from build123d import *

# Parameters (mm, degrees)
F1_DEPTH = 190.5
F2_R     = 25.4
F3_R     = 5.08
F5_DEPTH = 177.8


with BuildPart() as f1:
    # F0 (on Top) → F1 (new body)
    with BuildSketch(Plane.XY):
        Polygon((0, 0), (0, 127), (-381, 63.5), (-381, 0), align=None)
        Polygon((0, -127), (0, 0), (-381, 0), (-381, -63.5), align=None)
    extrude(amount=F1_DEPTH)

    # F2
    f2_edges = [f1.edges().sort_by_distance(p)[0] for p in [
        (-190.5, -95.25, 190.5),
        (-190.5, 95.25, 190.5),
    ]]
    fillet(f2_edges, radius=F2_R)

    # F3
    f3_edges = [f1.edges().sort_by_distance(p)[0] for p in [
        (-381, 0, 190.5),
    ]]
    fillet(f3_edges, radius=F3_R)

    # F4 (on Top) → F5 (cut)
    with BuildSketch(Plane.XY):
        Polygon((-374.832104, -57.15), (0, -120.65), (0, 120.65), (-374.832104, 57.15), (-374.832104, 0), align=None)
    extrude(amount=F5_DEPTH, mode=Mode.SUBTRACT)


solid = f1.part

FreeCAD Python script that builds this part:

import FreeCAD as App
import Part
import Sketcher

V = App.Vector
Q = App.Units.Quantity


def edges_at(feature, points):
    """Names of the edges that pass closest to the given points."""
    edges = feature.Shape.Edges
    near = lambda p: min(range(len(edges)), key=lambda i: edges[i].distToShape(Part.Vertex(*p))[0])
    return sorted({f"Edge{near(p) + 1}" for p in points})

doc = App.newDocument("Part")
body = doc.addObject("PartDesign::Body", "Body")

# Sketch on XY plane
sketch1 = body.newObject("Sketcher::SketchObject", "Sketch")
sketch1.AttachmentSupport = (doc.getObject("XY_Plane"), [""])
sketch1.MapMode = "FlatFace"
sketch1.addGeometry(Part.LineSegment(V(0, 127, 0), V(-381, 63.5, 0)), False)
sketch1.addGeometry(Part.LineSegment(V(-381, 63.5, 0), V(-381, -63.5, 0)), False)
sketch1.addGeometry(Part.LineSegment(V(-381, -63.5, 0), V(0, -127, 0)), False)
sketch1.addGeometry(Part.LineSegment(V(0, -127, 0), V(0, 127, 0)), False)
sketch1.addConstraint(Sketcher.Constraint("Coincident", 0, 2, 1, 1))
sketch1.addConstraint(Sketcher.Constraint("Coincident", 1, 2, 2, 1))
sketch1.addConstraint(Sketcher.Constraint("Coincident", 2, 2, 3, 1))
sketch1.addConstraint(Sketcher.Constraint("Coincident", 3, 2, 0, 1))
sketch1.addConstraint(Sketcher.Constraint("Vertical", 1))
sketch1.addConstraint(Sketcher.Constraint("Vertical", 3))
sketch1.addConstraint(Sketcher.Constraint("Symmetric", 2, 2, 3, 2, -1, 1))
sketch1.addConstraint(Sketcher.Constraint("Equal", 0, 2))
sketch1.addConstraint(Sketcher.Constraint("DistanceY", 1, 2, 1, 1, Q("5 in")))
sketch1.addConstraint(Sketcher.Constraint("DistanceY", 3, 1, 3, 2, Q("10 in")))
sketch1.addConstraint(Sketcher.Constraint("DistanceX", 0, 2, -1, 1, Q("15 in")))
pad1 = body.newObject("PartDesign::Pad", "Pad")
pad1.Profile = sketch1
pad1.Length = Q("7.5 in")
doc.recompute()

fillet = body.newObject("PartDesign::Fillet", "Fillet")
fillet.Base = (pad1, edges_at(pad1, [(-190.5, -95.25, 190.5), (-190.5, 95.25, 190.5)]))
fillet.Radius = Q("1 in")
doc.recompute()

fillet2 = body.newObject("PartDesign::Fillet", "Fillet001")
fillet2.Base = (fillet, edges_at(fillet, [(-381, 0, 190.5)]))
fillet2.Radius = Q("0.2 in")

# Sketch on XY plane
sketch2 = body.newObject("Sketcher::SketchObject", "Sketch001")
sketch2.AttachmentSupport = (doc.getObject("XY_Plane"), [""])
sketch2.MapMode = "FlatFace"
sketch2.addGeometry(Part.LineSegment(V(-374.832104, -57.15, 0), V(0, -120.65, 0)), False)
sketch2.addGeometry(Part.LineSegment(V(0, -120.65, 0), V(0, 120.65, 0)), False)
sketch2.addGeometry(Part.LineSegment(V(0, 120.65, 0), V(-374.832104, 57.15, 0)), False)
sketch2.addGeometry(Part.LineSegment(V(-374.832104, 57.15, 0), V(-374.832104, -57.15, 0)), False)
sketch2.addConstraint(Sketcher.Constraint("Coincident", 0, 2, 1, 1))
sketch2.addConstraint(Sketcher.Constraint("Coincident", 1, 2, 2, 1))
sketch2.addConstraint(Sketcher.Constraint("Coincident", 2, 2, 3, 1))
sketch2.addConstraint(Sketcher.Constraint("Coincident", 3, 2, 0, 1))
sketch2.addConstraint(Sketcher.Constraint("Vertical", 1))
sketch2.addConstraint(Sketcher.Constraint("Vertical", 3))
sketch2.addConstraint(Sketcher.Constraint("Symmetric", 0, 2, 1, 2, -1, 1))
sketch2.addConstraint(Sketcher.Constraint("Equal", 0, 2))
sketch2.addConstraint(Sketcher.Constraint("DistanceY", 1, 1, 1, 2, Q("9.5 in")))
sketch2.addConstraint(Sketcher.Constraint("DistanceY", 3, 2, 3, 1, Q("4.5 in")))
sketch2.addConstraint(Sketcher.Constraint("Distance", 0, Q("380.172798 mm")))
pocket1 = body.newObject("PartDesign::Pocket", "Pocket")
pocket1.Profile = sketch2
pocket1.Length = Q("7 in")
pocket1.Reversed = True

doc.recompute()
